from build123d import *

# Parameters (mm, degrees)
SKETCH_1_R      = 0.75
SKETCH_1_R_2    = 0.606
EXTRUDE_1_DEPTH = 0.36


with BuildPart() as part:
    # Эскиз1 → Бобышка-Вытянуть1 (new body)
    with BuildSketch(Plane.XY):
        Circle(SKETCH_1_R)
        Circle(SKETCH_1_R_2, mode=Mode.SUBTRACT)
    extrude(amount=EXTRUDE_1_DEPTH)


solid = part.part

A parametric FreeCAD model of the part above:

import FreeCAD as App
import Part
import Sketcher

V = App.Vector

doc = App.newDocument("Part")
body = doc.addObject("PartDesign::Body", "Body")

# Sketch on XY plane
sketch1 = doc.addObject("Sketcher::SketchObject", "Sketch")
body.addObject(sketch1)
sketch1.AttachmentSupport = (doc.XY_Plane, [""])
sketch1.MapMode = "FlatFace"
sketch1.addGeometry([
    Part.Circle(V(0, 0, 0), V(0, 0, 1), 0.75),
    Part.Circle(V(0, 0, 0), V(0, 0, 1), 0.606),
], False)
sketch1.addConstraint([
    Sketcher.Constraint("Coincident", 0, 3, -1, 1),
    Sketcher.Constraint("Coincident", 1, 3, -1, 1),
    Sketcher.Constraint("Diameter", 0, 1.5),
    Sketcher.Constraint("Diameter", 1, 1.212),
])
pad1 = doc.addObject("PartDesign::Pad", "Pad")
body.addObject(pad1)
pad1.Profile = sketch1
pad1.Length = 0.36

doc.recompute()
